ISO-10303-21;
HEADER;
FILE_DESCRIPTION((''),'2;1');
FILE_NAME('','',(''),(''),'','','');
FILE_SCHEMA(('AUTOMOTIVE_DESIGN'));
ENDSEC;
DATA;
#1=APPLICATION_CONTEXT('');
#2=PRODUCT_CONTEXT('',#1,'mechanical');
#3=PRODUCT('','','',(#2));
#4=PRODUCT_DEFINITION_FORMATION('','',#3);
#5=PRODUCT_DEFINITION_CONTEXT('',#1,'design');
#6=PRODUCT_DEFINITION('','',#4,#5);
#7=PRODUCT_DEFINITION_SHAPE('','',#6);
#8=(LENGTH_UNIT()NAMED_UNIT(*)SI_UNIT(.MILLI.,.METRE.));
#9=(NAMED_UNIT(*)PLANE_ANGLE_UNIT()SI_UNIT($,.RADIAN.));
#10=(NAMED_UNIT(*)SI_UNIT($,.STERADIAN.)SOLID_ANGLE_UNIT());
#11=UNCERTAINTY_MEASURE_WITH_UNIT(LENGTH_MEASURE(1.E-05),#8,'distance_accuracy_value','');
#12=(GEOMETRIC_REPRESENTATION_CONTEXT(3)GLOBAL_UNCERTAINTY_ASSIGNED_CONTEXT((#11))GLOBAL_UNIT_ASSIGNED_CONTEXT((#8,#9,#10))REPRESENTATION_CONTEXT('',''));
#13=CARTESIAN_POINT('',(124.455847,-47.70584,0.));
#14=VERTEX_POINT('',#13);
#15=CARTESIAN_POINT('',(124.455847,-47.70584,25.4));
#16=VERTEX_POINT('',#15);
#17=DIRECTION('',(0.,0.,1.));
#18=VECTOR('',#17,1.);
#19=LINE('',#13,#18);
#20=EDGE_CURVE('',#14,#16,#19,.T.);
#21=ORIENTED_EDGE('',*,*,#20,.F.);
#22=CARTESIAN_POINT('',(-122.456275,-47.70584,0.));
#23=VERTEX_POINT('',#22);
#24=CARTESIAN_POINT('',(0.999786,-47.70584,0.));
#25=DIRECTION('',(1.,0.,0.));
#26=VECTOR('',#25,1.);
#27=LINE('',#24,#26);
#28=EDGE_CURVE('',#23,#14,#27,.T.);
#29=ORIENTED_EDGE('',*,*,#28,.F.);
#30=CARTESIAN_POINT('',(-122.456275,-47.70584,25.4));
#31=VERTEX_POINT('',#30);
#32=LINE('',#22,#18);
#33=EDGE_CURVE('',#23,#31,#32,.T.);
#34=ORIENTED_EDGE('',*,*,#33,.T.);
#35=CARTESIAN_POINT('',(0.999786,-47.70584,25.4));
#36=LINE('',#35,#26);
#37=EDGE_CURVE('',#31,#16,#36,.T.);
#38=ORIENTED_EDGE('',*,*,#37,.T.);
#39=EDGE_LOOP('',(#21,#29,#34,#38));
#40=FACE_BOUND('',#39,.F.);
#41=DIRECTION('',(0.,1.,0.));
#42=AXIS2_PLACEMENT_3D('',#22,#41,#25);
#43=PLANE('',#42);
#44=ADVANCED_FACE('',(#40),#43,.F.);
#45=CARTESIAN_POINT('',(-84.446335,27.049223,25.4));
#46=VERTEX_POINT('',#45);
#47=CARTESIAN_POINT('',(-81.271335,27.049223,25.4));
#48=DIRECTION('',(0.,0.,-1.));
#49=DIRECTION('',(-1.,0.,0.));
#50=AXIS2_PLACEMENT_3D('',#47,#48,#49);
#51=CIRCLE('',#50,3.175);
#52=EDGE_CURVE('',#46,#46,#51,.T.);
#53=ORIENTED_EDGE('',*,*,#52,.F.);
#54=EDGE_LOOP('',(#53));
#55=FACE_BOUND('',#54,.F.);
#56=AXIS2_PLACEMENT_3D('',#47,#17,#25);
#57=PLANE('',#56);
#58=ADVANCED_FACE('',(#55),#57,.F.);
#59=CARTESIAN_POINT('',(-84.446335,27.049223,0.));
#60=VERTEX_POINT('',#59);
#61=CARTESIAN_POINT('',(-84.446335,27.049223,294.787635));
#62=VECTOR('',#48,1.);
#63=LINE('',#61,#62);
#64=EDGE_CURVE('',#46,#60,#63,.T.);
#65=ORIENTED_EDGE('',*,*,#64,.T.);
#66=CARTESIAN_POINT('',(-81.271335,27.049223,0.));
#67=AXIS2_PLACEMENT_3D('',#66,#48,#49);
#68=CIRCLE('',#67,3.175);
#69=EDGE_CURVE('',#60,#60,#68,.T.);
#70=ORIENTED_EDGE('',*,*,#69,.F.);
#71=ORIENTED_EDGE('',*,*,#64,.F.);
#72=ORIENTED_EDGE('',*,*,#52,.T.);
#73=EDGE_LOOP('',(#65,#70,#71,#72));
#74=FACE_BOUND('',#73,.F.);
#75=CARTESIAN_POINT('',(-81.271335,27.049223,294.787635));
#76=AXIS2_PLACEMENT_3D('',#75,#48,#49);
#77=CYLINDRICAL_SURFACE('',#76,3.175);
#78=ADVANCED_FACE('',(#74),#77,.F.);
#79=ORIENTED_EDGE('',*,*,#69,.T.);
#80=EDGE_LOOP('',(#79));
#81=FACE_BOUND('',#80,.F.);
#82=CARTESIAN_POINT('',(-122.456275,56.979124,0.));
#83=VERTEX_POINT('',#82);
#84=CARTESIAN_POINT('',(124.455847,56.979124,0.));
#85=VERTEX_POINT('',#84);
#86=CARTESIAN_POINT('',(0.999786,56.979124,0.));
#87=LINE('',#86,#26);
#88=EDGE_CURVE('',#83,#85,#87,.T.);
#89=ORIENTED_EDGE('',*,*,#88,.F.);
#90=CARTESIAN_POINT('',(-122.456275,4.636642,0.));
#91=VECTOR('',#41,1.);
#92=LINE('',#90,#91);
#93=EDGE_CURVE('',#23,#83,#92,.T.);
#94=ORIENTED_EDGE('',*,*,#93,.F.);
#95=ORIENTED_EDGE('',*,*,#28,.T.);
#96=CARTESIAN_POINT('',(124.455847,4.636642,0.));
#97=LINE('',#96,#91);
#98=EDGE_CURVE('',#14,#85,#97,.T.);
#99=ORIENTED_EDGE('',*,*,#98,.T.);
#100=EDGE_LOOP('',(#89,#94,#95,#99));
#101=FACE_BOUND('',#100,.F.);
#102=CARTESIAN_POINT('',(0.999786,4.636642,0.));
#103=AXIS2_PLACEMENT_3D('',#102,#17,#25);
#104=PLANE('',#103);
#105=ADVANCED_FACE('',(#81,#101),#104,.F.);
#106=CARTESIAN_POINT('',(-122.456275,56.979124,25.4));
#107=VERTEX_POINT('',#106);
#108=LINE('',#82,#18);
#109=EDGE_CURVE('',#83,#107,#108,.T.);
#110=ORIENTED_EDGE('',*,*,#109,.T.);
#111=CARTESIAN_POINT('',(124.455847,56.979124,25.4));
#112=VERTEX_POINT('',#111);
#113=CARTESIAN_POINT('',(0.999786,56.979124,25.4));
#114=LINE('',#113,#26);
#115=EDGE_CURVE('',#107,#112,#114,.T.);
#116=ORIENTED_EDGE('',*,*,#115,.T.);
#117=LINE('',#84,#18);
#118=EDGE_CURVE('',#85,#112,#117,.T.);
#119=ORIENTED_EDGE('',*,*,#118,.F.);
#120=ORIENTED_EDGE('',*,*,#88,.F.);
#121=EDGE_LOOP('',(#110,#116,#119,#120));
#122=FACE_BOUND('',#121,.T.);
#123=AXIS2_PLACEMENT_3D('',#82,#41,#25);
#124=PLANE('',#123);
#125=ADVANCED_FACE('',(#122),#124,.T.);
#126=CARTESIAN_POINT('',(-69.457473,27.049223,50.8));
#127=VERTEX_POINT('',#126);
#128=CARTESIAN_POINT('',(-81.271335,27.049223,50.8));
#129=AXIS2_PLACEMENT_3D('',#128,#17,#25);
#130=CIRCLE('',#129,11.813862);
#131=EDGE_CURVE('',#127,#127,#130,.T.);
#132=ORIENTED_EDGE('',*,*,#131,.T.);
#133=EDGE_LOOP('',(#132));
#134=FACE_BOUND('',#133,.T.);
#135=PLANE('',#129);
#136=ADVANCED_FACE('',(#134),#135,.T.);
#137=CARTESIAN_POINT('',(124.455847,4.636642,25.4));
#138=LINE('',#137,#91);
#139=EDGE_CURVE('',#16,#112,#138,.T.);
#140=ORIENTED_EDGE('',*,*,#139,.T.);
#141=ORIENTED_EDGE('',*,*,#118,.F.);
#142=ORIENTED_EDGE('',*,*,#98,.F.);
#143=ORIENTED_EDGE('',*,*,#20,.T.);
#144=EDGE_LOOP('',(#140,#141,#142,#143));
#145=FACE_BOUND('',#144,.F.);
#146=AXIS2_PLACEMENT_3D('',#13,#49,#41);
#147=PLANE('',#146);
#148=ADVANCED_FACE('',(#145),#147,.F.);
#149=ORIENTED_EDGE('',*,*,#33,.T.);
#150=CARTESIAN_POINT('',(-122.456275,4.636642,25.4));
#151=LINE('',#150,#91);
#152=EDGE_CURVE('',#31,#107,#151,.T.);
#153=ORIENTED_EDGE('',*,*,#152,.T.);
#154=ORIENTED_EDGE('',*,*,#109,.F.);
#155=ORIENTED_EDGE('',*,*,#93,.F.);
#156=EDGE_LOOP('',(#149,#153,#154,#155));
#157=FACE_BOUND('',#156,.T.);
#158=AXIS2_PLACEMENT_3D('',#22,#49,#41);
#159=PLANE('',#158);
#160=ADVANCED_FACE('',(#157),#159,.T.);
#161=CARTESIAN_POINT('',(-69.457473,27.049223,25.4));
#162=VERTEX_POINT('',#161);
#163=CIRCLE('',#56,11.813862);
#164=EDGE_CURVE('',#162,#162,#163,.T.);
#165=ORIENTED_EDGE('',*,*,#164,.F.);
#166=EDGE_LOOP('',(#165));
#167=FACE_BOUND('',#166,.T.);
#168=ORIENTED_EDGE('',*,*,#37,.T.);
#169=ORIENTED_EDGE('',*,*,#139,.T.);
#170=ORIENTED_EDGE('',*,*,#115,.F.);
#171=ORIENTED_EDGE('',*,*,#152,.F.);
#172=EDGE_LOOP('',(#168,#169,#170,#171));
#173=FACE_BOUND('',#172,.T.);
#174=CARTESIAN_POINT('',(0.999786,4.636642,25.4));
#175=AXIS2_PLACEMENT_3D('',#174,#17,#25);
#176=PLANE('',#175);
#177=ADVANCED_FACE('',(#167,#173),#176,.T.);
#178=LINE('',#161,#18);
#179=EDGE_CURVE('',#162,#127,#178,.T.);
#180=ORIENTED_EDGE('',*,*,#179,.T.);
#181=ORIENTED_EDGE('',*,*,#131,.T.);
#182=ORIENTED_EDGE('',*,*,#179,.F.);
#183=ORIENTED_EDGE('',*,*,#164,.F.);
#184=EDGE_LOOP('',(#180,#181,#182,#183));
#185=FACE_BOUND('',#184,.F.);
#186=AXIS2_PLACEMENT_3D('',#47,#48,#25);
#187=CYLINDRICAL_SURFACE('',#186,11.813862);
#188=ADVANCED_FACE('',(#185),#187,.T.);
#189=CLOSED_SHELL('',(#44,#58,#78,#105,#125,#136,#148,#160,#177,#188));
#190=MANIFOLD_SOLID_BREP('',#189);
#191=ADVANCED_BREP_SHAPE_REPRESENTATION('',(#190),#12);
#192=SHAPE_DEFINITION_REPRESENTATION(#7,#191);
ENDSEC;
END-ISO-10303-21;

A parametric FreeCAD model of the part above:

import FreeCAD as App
import Part
import Sketcher
from FreeCAD import Vector
Q = App.Units.Quantity

doc = App.newDocument("Part")
body = doc.addObject("PartDesign::Body", "Body")

# Sketch on XY plane
sketch1 = body.newObject("Sketcher::SketchObject", "Sketch")
sketch1.AttachmentSupport = (doc.getObject("XY_Plane"), [""])
sketch1.MapMode = "FlatFace"
sketch1.addGeometry(Part.LineSegment(Vector(-122, 57, 0), Vector(-122, -48, 0)), False)
sketch1.addGeometry(Part.LineSegment(Vector(-122, -48, 0), Vector(124, -48, 0)), False)
sketch1.addGeometry(Part.LineSegment(Vector(124, -48, 0), Vector(124, 57, 0)), False)
sketch1.addGeometry(Part.LineSegment(Vector(124, 57, 0), Vector(-122, 57, 0)), False)
sketch1.addConstraint(Sketcher.Constraint("Coincident", 0, 2, 1, 1))
sketch1.addConstraint(Sketcher.Constraint("Coincident", 1, 2, 2, 1))
sketch1.addConstraint(Sketcher.Constraint("Coincident", 2, 2, 3, 1))
sketch1.addConstraint(Sketcher.Constraint("Coincident", 3, 2, 0, 1))
sketch1.addConstraint(Sketcher.Constraint("Vertical", 0))
sketch1.addConstraint(Sketcher.Constraint("Horizontal", 1))
sketch1.addConstraint(Sketcher.Constraint("Vertical", 2))
sketch1.addConstraint(Sketcher.Constraint("Horizontal", 3))
sketch1.addConstraint(Sketcher.Constraint("DistanceX", 1, 1, 1, 2, 246.912122))
sketch1.addConstraint(Sketcher.Constraint("DistanceY", 0, 2, 0, 1, 104.684964))
sketch1.addConstraint(Sketcher.Constraint("DistanceY", 0, 2, -1, 1, 47.70584))
sketch1.addConstraint(Sketcher.Constraint("DistanceX", 0, 2, -1, 1, 122.456275))
pad1 = body.newObject("PartDesign::Pad", "Pad")
pad1.Profile = sketch1
pad1.Length = Q("1 in")

# Sketch on XY plane
sketch2 = body.newObject("Sketcher::SketchObject", "Sketch001")
sketch2.AttachmentSupport = (doc.getObject("XY_Plane"), [""])
sketch2.MapMode = "FlatFace"
sketch2.AttachmentOffset = App.Placement(Vector(0, 0, 1 * 25.4), App.Rotation())
sketch2.addGeometry(Part.Circle(Vector(-81.3, 27, 0), Vector(0, 0, 1), 3.2), False)
sketch2.addConstraint(Sketcher.Constraint("Diameter", 0, Q("0.25 in")))
sketch2.addConstraint(Sketcher.Constraint("DistanceX", 0, 3, -1, 1, 81.271335))
sketch2.addConstraint(Sketcher.Constraint("DistanceY", -1, 1, 0, 3, 27.049223))
doc.recompute()
hole = body.newObject("PartDesign::Hole", "Hole")
hole.Profile = sketch2
hole.ThreadType = "None"
hole.Diameter = Q("0.25 in")
hole.DepthType = "ThroughAll"

# Sketch on XY plane
sketch3 = body.newObject("Sketcher::SketchObject", "Sketch002")
sketch3.AttachmentSupport = (doc.getObject("XY_Plane"), [""])
sketch3.MapMode = "FlatFace"
sketch3.AttachmentOffset = App.Placement(Vector(0, 0, 1 * 25.4), App.Rotation())
sketch3.addGeometry(Part.Circle(Vector(-81, 27, 0), Vector(0, 0, 1), 12), False)
sketch3.addConstraint(Sketcher.Constraint("Diameter", 0, 23.627724))
sketch3.addConstraint(Sketcher.Constraint("DistanceX", 0, 3, -1, 1, 81.271335))
sketch3.addConstraint(Sketcher.Constraint("DistanceY", -1, 1, 0, 3, 27.049223))
pad2 = body.newObject("PartDesign::Pad", "Pad001")
pad2.Profile = sketch3
pad2.Length = Q("1 in")

doc.recompute()
